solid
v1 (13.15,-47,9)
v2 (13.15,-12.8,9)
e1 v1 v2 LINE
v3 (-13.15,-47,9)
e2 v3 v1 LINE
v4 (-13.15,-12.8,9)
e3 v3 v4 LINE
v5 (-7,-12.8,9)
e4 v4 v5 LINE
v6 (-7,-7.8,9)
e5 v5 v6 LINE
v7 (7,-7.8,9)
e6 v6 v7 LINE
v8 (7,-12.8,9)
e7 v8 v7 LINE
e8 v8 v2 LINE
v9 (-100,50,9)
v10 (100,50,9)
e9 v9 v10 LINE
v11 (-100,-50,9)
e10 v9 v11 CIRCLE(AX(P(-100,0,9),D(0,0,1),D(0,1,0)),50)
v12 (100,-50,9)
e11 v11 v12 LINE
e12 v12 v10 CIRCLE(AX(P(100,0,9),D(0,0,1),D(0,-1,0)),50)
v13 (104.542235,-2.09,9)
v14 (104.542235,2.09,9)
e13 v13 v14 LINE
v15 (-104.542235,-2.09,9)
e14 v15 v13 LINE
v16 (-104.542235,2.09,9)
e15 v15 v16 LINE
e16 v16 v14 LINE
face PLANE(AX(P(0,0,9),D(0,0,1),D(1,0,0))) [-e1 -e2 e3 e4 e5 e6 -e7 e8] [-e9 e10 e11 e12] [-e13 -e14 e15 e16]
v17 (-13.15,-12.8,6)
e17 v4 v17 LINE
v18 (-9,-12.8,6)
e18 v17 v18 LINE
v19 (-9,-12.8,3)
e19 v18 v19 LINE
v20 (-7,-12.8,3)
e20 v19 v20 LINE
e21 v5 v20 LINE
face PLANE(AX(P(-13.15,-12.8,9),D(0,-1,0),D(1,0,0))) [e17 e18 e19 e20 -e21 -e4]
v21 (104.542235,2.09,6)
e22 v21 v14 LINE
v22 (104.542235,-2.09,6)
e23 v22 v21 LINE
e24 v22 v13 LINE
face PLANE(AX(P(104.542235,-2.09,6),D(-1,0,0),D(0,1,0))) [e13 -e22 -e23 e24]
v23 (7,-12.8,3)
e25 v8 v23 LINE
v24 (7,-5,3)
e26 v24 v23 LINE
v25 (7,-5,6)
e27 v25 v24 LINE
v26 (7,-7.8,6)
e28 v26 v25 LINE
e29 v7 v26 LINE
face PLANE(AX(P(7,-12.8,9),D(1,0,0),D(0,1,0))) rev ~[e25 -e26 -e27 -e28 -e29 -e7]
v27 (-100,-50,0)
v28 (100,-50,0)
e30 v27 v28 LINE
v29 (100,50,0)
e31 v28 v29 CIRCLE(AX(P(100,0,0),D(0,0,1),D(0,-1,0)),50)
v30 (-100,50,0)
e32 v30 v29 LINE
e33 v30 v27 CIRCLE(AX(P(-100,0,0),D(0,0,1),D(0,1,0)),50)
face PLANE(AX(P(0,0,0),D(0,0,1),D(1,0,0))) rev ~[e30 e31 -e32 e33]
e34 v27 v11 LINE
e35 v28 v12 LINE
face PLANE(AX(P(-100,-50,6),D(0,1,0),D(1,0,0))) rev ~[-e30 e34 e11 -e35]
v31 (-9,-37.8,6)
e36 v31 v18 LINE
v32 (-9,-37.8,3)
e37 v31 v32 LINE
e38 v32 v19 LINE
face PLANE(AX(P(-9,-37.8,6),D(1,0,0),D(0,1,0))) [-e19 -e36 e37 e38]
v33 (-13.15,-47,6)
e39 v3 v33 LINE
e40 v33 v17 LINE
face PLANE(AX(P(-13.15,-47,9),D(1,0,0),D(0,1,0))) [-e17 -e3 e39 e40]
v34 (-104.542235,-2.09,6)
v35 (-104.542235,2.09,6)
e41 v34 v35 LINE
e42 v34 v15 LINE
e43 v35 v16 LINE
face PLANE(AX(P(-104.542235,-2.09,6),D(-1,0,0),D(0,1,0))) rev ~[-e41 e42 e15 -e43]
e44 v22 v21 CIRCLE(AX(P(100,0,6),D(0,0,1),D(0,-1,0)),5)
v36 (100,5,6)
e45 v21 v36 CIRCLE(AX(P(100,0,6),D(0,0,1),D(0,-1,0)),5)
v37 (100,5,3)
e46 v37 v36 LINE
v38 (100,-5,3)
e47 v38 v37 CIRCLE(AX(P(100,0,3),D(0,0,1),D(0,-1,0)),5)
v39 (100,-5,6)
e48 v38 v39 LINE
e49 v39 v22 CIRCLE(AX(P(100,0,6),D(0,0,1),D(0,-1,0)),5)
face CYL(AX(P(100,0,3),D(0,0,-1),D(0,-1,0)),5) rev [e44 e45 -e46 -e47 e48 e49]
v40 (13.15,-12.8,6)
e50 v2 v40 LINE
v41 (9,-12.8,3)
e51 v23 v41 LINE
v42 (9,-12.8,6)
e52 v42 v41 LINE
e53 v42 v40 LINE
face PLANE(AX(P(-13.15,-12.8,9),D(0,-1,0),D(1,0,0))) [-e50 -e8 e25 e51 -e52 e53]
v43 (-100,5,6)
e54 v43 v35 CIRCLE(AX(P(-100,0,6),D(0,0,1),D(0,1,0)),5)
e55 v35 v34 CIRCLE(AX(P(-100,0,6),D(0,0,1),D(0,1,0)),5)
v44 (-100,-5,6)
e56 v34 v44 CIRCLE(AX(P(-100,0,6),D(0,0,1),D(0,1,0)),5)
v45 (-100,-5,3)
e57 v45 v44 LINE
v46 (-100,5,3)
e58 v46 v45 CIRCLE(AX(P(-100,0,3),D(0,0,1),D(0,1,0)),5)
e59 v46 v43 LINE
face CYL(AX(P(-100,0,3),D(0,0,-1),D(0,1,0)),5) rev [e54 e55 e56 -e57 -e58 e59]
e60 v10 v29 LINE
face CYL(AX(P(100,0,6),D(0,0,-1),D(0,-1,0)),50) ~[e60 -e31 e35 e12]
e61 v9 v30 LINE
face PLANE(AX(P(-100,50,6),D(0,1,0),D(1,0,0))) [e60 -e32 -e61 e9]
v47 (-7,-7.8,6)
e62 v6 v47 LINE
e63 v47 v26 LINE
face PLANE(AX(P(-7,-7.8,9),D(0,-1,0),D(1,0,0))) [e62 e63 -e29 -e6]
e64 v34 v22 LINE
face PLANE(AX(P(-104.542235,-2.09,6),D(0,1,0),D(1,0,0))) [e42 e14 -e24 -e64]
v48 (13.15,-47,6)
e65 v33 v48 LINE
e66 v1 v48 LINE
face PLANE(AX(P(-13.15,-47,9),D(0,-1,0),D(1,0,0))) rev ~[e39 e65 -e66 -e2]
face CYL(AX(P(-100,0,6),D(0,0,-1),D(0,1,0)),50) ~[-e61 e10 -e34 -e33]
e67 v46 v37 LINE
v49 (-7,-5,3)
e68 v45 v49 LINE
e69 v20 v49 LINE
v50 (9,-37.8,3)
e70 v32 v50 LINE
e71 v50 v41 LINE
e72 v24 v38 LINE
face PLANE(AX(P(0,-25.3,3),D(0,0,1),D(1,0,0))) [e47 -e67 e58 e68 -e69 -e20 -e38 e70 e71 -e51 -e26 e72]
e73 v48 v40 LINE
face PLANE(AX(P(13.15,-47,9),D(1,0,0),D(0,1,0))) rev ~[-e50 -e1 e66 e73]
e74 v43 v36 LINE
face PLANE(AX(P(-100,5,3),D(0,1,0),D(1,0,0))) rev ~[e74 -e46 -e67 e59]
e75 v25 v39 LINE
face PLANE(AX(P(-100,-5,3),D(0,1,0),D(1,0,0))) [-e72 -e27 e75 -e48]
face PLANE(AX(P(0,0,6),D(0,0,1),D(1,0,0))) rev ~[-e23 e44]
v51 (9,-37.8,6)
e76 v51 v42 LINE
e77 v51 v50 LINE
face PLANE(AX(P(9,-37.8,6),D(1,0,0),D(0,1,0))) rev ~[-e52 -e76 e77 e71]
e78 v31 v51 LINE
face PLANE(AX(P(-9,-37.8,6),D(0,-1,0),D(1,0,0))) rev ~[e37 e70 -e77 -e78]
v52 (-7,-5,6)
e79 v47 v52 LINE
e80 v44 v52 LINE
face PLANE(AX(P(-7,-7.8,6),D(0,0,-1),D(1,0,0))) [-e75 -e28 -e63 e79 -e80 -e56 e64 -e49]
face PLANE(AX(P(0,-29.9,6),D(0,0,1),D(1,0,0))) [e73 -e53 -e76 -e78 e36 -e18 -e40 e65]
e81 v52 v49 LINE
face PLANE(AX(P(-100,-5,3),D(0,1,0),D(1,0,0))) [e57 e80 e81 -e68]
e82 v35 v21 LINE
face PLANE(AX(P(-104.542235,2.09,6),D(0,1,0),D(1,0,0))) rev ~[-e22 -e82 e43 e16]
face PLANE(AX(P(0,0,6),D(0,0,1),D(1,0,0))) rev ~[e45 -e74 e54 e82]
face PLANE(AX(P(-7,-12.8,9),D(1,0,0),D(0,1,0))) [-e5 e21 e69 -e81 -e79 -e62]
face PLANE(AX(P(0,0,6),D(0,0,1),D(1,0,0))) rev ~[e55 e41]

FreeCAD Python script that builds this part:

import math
import FreeCAD as App
import Part
import Sketcher
Q = App.Units.Quantity


def add_polygon(sketch, points):
    """Adds a closed chain of lines whose ends are joined by coincident constraints."""
    first, n = sketch.GeometryCount, len(points)
    for a, b in zip(points, points[1:] + points[:1]):
        sketch.addGeometry(Part.LineSegment(App.Vector(*a, 0), App.Vector(*b, 0)), False)
    for i in range(n):
        sketch.addConstraint(Sketcher.Constraint("Coincident", first + i, 2, first + (i + 1) % n, 1))

doc = App.newDocument("Part")
params = doc.addObject("Spreadsheet::Sheet", "Params")
for row, (alias, value) in enumerate([
    ("sketch1_radius", "50 mm"),
    ("sketch1_width", "200 mm"),
    ("pad1_length", "3 mm"),
    ("sketch2_radius", "50 mm"),
    ("sketch2_radius2", "5 mm"),
    ("sketch2_width", "200 mm"),
    ("pad2_length", "3 mm"),
    ("sketch3_radius", "50 mm"),
    ("sketch3_width", "200 mm"),
    ("sketch3_height", "4.18 mm"),
    ("pad3_length", "3 mm"),
    ("sketch4_width", "26.3 mm"),
    ("sketch4_height", "34.2 mm"),
    ("pocket1_length", "3 mm"),
    ("sketch5_width", "18 mm"),
    ("sketch5_height", "25 mm"),
    ("pocket2_length", "3 mm"),
    ("sketch6_width", "14 mm"),
    ("sketch6_height", "5 mm"),
    ("pocket3_length", "6 mm"),
    ("sketch7_width", "14 mm"),
    ("sketch7_height", "3 mm"),
    ("pocket4_length", "3 mm"),
], start=1):
    params.set(f"A{row}", alias)
    params.set(f"B{row}", "=" + value)
    params.setAlias(f"B{row}", alias)

body = doc.addObject("PartDesign::Body", "Body")

# Sketch on XY plane
sketch1 = doc.addObject("Sketcher::SketchObject", "Sketch")
body.addObject(sketch1)
sketch1.AttachmentSupport = (doc.XY_Plane, [""])
sketch1.MapMode = "FlatFace"
sketch1.addGeometry([
    Part.ArcOfCircle(Part.Circle(App.Vector(-100, 0, 0), App.Vector(0, 0, 1), 50), math.radians(90), math.radians(270)),
    Part.LineSegment(App.Vector(-100, -50, 0), App.Vector(100, -50, 0)),
    Part.ArcOfCircle(Part.Circle(App.Vector(100, 0, 0), App.Vector(0, 0, 1), 50), math.radians(-90), math.radians(90)),
    Part.LineSegment(App.Vector(100, 50, 0), App.Vector(-100, 50, 0)),
], False)
sketch1.addConstraint([
    Sketcher.Constraint("Tangent", 0, 2, 1, 1),
    Sketcher.Constraint("Tangent", 1, 2, 2, 1),
    Sketcher.Constraint("Tangent", 2, 2, 3, 1),
    Sketcher.Constraint("Tangent", 3, 2, 0, 1),
    Sketcher.Constraint("Horizontal", 1),
    Sketcher.Constraint("Horizontal", 3),
    Sketcher.Constraint("Symmetric", 0, 3, 2, 3, -1, 1),
    Sketcher.Constraint("Radius", 0, Q("50 mm")),
    Sketcher.Constraint("DistanceX", 1, 1, 1, 2, Q("200 mm")),
])
sketch1.setExpression("Constraints[7]", "Params.sketch1_radius")
sketch1.setExpression("Constraints[8]", "Params.sketch1_width")
pad1 = doc.addObject("PartDesign::Pad", "Pad")
body.addObject(pad1)
pad1.Profile = sketch1
pad1.setExpression("Length", "Params.pad1_length")

# Sketch on XY plane
sketch2 = doc.addObject("Sketcher::SketchObject", "Sketch001")
body.addObject(sketch2)
sketch2.AttachmentSupport = (doc.XY_Plane, [""])
sketch2.MapMode = "FlatFace"
sketch2.AttachmentOffset = App.Placement(App.Vector(0, 0, 3), App.Rotation())
sketch2.addGeometry([
    Part.ArcOfCircle(Part.Circle(App.Vector(-100, 0, 0), App.Vector(0, 0, 1), 50), math.radians(90), math.radians(270)),  # 0
    Part.LineSegment(App.Vector(-100, -50, 0), App.Vector(100, -50, 0)),  # 1
    Part.ArcOfCircle(Part.Circle(App.Vector(100, 0, 0), App.Vector(0, 0, 1), 50), math.radians(-90), math.radians(90)),  # 2
    Part.LineSegment(App.Vector(100, 50, 0), App.Vector(-100, 50, 0)),  # 3
    Part.ArcOfCircle(Part.Circle(App.Vector(-100, 0, 0), App.Vector(0, 0, 1), 5), math.radians(90), math.radians(270)),  # 4
    Part.LineSegment(App.Vector(-100, 5, 0), App.Vector(100, 5, 0)),  # 5
    Part.ArcOfCircle(Part.Circle(App.Vector(100, 0, 0), App.Vector(0, 0, 1), 5), math.radians(-90), math.radians(90)),  # 6
    Part.LineSegment(App.Vector(100, -5, 0), App.Vector(-100, -5, 0)),  # 7
], False)
sketch2.addConstraint([
    Sketcher.Constraint("Tangent", 0, 2, 1, 1),
    Sketcher.Constraint("Tangent", 1, 2, 2, 1),
    Sketcher.Constraint("Tangent", 2, 2, 3, 1),
    Sketcher.Constraint("Tangent", 3, 2, 0, 1),
    Sketcher.Constraint("Tangent", 4, 1, 5, 1),
    Sketcher.Constraint("Tangent", 5, 2, 6, 2),
    Sketcher.Constraint("Tangent", 6, 1, 7, 1),
    Sketcher.Constraint("Tangent", 7, 2, 4, 2),
    Sketcher.Constraint("Horizontal", 1),
    Sketcher.Constraint("Horizontal", 3),
    Sketcher.Constraint("Horizontal", 5),
    Sketcher.Constraint("Horizontal", 7),
    Sketcher.Constraint("Coincident", 4, 3, 0, 3),
    Sketcher.Constraint("Symmetric", 0, 3, 2, 3, -1, 1),
    Sketcher.Constraint("Vertical", 6, 3, 1, 2),
    Sketcher.Constraint("Radius", 0, Q("50 mm")),
    Sketcher.Constraint("Radius", 4, Q("5 mm")),
    Sketcher.Constraint("DistanceX", 1, 1, 1, 2, Q("200 mm")),
])
sketch2.setExpression("Constraints[15]", "Params.sketch2_radius")
sketch2.setExpression("Constraints[16]", "Params.sketch2_radius2")
sketch2.setExpression("Constraints[17]", "Params.sketch2_width")
pad2 = doc.addObject("PartDesign::Pad", "Pad001")
body.addObject(pad2)
pad2.Profile = sketch2
pad2.setExpression("Length", "Params.pad2_length")

# Sketch on XY plane
sketch3 = doc.addObject("Sketcher::SketchObject", "Sketch002")
body.addObject(sketch3)
sketch3.AttachmentSupport = (doc.XY_Plane, [""])
sketch3.MapMode = "FlatFace"
sketch3.AttachmentOffset = App.Placement(App.Vector(0, 0, 6), App.Rotation())
sketch3.addGeometry(Part.ArcOfCircle(Part.Circle(App.Vector(-100, 0, 0), App.Vector(0, 0, 1), 50), math.radians(90), math.radians(270)), False)  # 0
sketch3.addGeometry(Part.LineSegment(App.Vector(-100, -50, 0), App.Vector(100, -50, 0)), False)  # 1
sketch3.addGeometry(Part.ArcOfCircle(Part.Circle(App.Vector(100, 0, 0), App.Vector(0, 0, 1), 50), math.radians(-90), math.radians(90)), False)  # 2
sketch3.addGeometry(Part.LineSegment(App.Vector(100, 50, 0), App.Vector(-100, 50, 0)), False)  # 3
add_polygon(sketch3, [(104.5, -2.1), (-104.5, -2.1), (-104.5, 2.1), (104.5, 2.1)])  # lines 4-7
sketch3.addConstraint([
    Sketcher.Constraint("Tangent", 0, 2, 1, 1),
    Sketcher.Constraint("Tangent", 1, 2, 2, 1),
    Sketcher.Constraint("Tangent", 2, 2, 3, 1),
    Sketcher.Constraint("Tangent", 3, 2, 0, 1),
    Sketcher.Constraint("Horizontal", 1),
    Sketcher.Constraint("Horizontal", 3),
    Sketcher.Constraint("Horizontal", 4),
    Sketcher.Constraint("Vertical", 5),
    Sketcher.Constraint("Horizontal", 6),
    Sketcher.Constraint("Vertical", 7),
    Sketcher.Constraint("Symmetric", 0, 3, 2, 3, -1, 1),
    Sketcher.Constraint("Symmetric", 4, 2, 6, 2, -1, 1),
    Sketcher.Constraint("Radius", 0, Q("50 mm")),
    Sketcher.Constraint("DistanceX", 1, 1, 1, 2, Q("200 mm")),
    Sketcher.Constraint("DistanceY", 5, 1, 5, 2, Q("4.18 mm")),
    Sketcher.Constraint("DistanceX", 4, 2, 4, 1, Q("209.08447 mm")),
])
sketch3.setExpression("Constraints[16]", "Params.sketch3_radius")
sketch3.setExpression("Constraints[17]", "Params.sketch3_width")
sketch3.setExpression("Constraints[18]", "Params.sketch3_height")
pad3 = doc.addObject("PartDesign::Pad", "Pad002")
body.addObject(pad3)
pad3.Profile = sketch3
pad3.setExpression("Length", "Params.pad3_length")

# Sketch on XY plane
sketch4 = doc.addObject("Sketcher::SketchObject", "Sketch003")
body.addObject(sketch4)
sketch4.AttachmentSupport = (doc.XY_Plane, [""])
sketch4.MapMode = "FlatFace"
sketch4.AttachmentOffset = App.Placement(App.Vector(0, 0, 9), App.Rotation())
add_polygon(sketch4, [(-13, -13), (-13, -47), (13, -47), (13, -13)])  # lines 0-3
sketch4.addConstraint([
    Sketcher.Constraint("Vertical", 0),
    Sketcher.Constraint("Horizontal", 1),
    Sketcher.Constraint("Vertical", 2),
    Sketcher.Constraint("Horizontal", 3),
    Sketcher.Constraint("DistanceX", 1, 1, 1, 2, Q("26.3 mm")),
    Sketcher.Constraint("DistanceY", 0, 2, 0, 1, Q("34.2 mm")),
    Sketcher.Constraint("DistanceY", 0, 2, -1, 1, Q("47 mm")),
    Sketcher.Constraint("DistanceX", 0, 2, -1, 1, Q("13.15 mm")),
])
sketch4.setExpression("Constraints[8]", "Params.sketch4_width")
sketch4.setExpression("Constraints[9]", "Params.sketch4_height")
pocket1 = doc.addObject("PartDesign::Pocket", "Pocket")
body.addObject(pocket1)
pocket1.Profile = sketch4
pocket1.setExpression("Length", "Params.pocket1_length")

# Sketch on XY plane
sketch5 = doc.addObject("Sketcher::SketchObject", "Sketch004")
body.addObject(sketch5)
sketch5.AttachmentSupport = (doc.XY_Plane, [""])
sketch5.MapMode = "FlatFace"
sketch5.AttachmentOffset = App.Placement(App.Vector(0, 0, 6), App.Rotation())
add_polygon(sketch5, [(-9, -13), (-9, -38), (9, -38), (9, -13)])  # lines 0-3
sketch5.addConstraint([
    Sketcher.Constraint("Vertical", 0),
    Sketcher.Constraint("Horizontal", 1),
    Sketcher.Constraint("Vertical", 2),
    Sketcher.Constraint("Horizontal", 3),
    Sketcher.Constraint("DistanceX", 1, 1, 1, 2, Q("18 mm")),
    Sketcher.Constraint("DistanceY", 0, 2, 0, 1, Q("25 mm")),
    Sketcher.Constraint("DistanceX", 0, 2, -1, 1, Q("9 mm")),
    Sketcher.Constraint("DistanceY", 0, 2, -1, 1, Q("37.8 mm")),
])
sketch5.setExpression("Constraints[8]", "Params.sketch5_width")
sketch5.setExpression("Constraints[9]", "Params.sketch5_height")
pocket2 = doc.addObject("PartDesign::Pocket", "Pocket001")
body.addObject(pocket2)
pocket2.Profile = sketch5
pocket2.setExpression("Length", "Params.pocket2_length")

# Sketch on XY plane
sketch6 = doc.addObject("Sketcher::SketchObject", "Sketch005")
body.addObject(sketch6)
sketch6.AttachmentSupport = (doc.XY_Plane, [""])
sketch6.MapMode = "FlatFace"
sketch6.AttachmentOffset = App.Placement(App.Vector(0, 0, 9), App.Rotation())
add_polygon(sketch6, [(-7, -8), (-7, -13), (7, -13), (7, -8)])  # lines 0-3
sketch6.addConstraint([
    Sketcher.Constraint("Vertical", 0),
    Sketcher.Constraint("Horizontal", 1),
    Sketcher.Constraint("Vertical", 2),
    Sketcher.Constraint("Horizontal", 3),
    Sketcher.Constraint("DistanceX", 1, 1, 1, 2, Q("14 mm")),
    Sketcher.Constraint("DistanceY", 0, 2, 0, 1, Q("5 mm")),
    Sketcher.Constraint("DistanceX", 0, 2, -1, 1, Q("7 mm")),
    Sketcher.Constraint("DistanceY", 0, 2, -1, 1, Q("12.8 mm")),
])
sketch6.setExpression("Constraints[8]", "Params.sketch6_width")
sketch6.setExpression("Constraints[9]", "Params.sketch6_height")
pocket3 = doc.addObject("PartDesign::Pocket", "Pocket002")
body.addObject(pocket3)
pocket3.Profile = sketch6
pocket3.setExpression("Length", "Params.pocket3_length")

# Sketch on XZ plane
sketch7 = doc.addObject("Sketcher::SketchObject", "Sketch006")
body.addObject(sketch7)
sketch7.AttachmentSupport = (doc.XZ_Plane, [""])
sketch7.MapMode = "FlatFace"
sketch7.AttachmentOffset = App.Placement(App.Vector(0, 0, 7.8), App.Rotation())
add_polygon(sketch7, [(-7, 6), (-7, 3), (7, 3), (7, 6)])  # lines 0-3
sketch7.addConstraint([
    Sketcher.Constraint("Vertical", 0),
    Sketcher.Constraint("Horizontal", 1),
    Sketcher.Constraint("Vertical", 2),
    Sketcher.Constraint("Horizontal", 3),
    Sketcher.Constraint("DistanceX", 1, 1, 1, 2, Q("14 mm")),
    Sketcher.Constraint("DistanceY", 0, 2, 0, 1, Q("3 mm")),
    Sketcher.Constraint("DistanceX", 0, 2, -1, 1, Q("7 mm")),
    Sketcher.Constraint("DistanceY", -1, 1, 0, 2, Q("3 mm")),
])
sketch7.setExpression("Constraints[8]", "Params.sketch7_width")
sketch7.setExpression("Constraints[9]", "Params.sketch7_height")
pocket4 = doc.addObject("PartDesign::Pocket", "Pocket003")
body.addObject(pocket4)
pocket4.Profile = sketch7
pocket4.setExpression("Length", "Params.pocket4_length")

doc.recompute()
